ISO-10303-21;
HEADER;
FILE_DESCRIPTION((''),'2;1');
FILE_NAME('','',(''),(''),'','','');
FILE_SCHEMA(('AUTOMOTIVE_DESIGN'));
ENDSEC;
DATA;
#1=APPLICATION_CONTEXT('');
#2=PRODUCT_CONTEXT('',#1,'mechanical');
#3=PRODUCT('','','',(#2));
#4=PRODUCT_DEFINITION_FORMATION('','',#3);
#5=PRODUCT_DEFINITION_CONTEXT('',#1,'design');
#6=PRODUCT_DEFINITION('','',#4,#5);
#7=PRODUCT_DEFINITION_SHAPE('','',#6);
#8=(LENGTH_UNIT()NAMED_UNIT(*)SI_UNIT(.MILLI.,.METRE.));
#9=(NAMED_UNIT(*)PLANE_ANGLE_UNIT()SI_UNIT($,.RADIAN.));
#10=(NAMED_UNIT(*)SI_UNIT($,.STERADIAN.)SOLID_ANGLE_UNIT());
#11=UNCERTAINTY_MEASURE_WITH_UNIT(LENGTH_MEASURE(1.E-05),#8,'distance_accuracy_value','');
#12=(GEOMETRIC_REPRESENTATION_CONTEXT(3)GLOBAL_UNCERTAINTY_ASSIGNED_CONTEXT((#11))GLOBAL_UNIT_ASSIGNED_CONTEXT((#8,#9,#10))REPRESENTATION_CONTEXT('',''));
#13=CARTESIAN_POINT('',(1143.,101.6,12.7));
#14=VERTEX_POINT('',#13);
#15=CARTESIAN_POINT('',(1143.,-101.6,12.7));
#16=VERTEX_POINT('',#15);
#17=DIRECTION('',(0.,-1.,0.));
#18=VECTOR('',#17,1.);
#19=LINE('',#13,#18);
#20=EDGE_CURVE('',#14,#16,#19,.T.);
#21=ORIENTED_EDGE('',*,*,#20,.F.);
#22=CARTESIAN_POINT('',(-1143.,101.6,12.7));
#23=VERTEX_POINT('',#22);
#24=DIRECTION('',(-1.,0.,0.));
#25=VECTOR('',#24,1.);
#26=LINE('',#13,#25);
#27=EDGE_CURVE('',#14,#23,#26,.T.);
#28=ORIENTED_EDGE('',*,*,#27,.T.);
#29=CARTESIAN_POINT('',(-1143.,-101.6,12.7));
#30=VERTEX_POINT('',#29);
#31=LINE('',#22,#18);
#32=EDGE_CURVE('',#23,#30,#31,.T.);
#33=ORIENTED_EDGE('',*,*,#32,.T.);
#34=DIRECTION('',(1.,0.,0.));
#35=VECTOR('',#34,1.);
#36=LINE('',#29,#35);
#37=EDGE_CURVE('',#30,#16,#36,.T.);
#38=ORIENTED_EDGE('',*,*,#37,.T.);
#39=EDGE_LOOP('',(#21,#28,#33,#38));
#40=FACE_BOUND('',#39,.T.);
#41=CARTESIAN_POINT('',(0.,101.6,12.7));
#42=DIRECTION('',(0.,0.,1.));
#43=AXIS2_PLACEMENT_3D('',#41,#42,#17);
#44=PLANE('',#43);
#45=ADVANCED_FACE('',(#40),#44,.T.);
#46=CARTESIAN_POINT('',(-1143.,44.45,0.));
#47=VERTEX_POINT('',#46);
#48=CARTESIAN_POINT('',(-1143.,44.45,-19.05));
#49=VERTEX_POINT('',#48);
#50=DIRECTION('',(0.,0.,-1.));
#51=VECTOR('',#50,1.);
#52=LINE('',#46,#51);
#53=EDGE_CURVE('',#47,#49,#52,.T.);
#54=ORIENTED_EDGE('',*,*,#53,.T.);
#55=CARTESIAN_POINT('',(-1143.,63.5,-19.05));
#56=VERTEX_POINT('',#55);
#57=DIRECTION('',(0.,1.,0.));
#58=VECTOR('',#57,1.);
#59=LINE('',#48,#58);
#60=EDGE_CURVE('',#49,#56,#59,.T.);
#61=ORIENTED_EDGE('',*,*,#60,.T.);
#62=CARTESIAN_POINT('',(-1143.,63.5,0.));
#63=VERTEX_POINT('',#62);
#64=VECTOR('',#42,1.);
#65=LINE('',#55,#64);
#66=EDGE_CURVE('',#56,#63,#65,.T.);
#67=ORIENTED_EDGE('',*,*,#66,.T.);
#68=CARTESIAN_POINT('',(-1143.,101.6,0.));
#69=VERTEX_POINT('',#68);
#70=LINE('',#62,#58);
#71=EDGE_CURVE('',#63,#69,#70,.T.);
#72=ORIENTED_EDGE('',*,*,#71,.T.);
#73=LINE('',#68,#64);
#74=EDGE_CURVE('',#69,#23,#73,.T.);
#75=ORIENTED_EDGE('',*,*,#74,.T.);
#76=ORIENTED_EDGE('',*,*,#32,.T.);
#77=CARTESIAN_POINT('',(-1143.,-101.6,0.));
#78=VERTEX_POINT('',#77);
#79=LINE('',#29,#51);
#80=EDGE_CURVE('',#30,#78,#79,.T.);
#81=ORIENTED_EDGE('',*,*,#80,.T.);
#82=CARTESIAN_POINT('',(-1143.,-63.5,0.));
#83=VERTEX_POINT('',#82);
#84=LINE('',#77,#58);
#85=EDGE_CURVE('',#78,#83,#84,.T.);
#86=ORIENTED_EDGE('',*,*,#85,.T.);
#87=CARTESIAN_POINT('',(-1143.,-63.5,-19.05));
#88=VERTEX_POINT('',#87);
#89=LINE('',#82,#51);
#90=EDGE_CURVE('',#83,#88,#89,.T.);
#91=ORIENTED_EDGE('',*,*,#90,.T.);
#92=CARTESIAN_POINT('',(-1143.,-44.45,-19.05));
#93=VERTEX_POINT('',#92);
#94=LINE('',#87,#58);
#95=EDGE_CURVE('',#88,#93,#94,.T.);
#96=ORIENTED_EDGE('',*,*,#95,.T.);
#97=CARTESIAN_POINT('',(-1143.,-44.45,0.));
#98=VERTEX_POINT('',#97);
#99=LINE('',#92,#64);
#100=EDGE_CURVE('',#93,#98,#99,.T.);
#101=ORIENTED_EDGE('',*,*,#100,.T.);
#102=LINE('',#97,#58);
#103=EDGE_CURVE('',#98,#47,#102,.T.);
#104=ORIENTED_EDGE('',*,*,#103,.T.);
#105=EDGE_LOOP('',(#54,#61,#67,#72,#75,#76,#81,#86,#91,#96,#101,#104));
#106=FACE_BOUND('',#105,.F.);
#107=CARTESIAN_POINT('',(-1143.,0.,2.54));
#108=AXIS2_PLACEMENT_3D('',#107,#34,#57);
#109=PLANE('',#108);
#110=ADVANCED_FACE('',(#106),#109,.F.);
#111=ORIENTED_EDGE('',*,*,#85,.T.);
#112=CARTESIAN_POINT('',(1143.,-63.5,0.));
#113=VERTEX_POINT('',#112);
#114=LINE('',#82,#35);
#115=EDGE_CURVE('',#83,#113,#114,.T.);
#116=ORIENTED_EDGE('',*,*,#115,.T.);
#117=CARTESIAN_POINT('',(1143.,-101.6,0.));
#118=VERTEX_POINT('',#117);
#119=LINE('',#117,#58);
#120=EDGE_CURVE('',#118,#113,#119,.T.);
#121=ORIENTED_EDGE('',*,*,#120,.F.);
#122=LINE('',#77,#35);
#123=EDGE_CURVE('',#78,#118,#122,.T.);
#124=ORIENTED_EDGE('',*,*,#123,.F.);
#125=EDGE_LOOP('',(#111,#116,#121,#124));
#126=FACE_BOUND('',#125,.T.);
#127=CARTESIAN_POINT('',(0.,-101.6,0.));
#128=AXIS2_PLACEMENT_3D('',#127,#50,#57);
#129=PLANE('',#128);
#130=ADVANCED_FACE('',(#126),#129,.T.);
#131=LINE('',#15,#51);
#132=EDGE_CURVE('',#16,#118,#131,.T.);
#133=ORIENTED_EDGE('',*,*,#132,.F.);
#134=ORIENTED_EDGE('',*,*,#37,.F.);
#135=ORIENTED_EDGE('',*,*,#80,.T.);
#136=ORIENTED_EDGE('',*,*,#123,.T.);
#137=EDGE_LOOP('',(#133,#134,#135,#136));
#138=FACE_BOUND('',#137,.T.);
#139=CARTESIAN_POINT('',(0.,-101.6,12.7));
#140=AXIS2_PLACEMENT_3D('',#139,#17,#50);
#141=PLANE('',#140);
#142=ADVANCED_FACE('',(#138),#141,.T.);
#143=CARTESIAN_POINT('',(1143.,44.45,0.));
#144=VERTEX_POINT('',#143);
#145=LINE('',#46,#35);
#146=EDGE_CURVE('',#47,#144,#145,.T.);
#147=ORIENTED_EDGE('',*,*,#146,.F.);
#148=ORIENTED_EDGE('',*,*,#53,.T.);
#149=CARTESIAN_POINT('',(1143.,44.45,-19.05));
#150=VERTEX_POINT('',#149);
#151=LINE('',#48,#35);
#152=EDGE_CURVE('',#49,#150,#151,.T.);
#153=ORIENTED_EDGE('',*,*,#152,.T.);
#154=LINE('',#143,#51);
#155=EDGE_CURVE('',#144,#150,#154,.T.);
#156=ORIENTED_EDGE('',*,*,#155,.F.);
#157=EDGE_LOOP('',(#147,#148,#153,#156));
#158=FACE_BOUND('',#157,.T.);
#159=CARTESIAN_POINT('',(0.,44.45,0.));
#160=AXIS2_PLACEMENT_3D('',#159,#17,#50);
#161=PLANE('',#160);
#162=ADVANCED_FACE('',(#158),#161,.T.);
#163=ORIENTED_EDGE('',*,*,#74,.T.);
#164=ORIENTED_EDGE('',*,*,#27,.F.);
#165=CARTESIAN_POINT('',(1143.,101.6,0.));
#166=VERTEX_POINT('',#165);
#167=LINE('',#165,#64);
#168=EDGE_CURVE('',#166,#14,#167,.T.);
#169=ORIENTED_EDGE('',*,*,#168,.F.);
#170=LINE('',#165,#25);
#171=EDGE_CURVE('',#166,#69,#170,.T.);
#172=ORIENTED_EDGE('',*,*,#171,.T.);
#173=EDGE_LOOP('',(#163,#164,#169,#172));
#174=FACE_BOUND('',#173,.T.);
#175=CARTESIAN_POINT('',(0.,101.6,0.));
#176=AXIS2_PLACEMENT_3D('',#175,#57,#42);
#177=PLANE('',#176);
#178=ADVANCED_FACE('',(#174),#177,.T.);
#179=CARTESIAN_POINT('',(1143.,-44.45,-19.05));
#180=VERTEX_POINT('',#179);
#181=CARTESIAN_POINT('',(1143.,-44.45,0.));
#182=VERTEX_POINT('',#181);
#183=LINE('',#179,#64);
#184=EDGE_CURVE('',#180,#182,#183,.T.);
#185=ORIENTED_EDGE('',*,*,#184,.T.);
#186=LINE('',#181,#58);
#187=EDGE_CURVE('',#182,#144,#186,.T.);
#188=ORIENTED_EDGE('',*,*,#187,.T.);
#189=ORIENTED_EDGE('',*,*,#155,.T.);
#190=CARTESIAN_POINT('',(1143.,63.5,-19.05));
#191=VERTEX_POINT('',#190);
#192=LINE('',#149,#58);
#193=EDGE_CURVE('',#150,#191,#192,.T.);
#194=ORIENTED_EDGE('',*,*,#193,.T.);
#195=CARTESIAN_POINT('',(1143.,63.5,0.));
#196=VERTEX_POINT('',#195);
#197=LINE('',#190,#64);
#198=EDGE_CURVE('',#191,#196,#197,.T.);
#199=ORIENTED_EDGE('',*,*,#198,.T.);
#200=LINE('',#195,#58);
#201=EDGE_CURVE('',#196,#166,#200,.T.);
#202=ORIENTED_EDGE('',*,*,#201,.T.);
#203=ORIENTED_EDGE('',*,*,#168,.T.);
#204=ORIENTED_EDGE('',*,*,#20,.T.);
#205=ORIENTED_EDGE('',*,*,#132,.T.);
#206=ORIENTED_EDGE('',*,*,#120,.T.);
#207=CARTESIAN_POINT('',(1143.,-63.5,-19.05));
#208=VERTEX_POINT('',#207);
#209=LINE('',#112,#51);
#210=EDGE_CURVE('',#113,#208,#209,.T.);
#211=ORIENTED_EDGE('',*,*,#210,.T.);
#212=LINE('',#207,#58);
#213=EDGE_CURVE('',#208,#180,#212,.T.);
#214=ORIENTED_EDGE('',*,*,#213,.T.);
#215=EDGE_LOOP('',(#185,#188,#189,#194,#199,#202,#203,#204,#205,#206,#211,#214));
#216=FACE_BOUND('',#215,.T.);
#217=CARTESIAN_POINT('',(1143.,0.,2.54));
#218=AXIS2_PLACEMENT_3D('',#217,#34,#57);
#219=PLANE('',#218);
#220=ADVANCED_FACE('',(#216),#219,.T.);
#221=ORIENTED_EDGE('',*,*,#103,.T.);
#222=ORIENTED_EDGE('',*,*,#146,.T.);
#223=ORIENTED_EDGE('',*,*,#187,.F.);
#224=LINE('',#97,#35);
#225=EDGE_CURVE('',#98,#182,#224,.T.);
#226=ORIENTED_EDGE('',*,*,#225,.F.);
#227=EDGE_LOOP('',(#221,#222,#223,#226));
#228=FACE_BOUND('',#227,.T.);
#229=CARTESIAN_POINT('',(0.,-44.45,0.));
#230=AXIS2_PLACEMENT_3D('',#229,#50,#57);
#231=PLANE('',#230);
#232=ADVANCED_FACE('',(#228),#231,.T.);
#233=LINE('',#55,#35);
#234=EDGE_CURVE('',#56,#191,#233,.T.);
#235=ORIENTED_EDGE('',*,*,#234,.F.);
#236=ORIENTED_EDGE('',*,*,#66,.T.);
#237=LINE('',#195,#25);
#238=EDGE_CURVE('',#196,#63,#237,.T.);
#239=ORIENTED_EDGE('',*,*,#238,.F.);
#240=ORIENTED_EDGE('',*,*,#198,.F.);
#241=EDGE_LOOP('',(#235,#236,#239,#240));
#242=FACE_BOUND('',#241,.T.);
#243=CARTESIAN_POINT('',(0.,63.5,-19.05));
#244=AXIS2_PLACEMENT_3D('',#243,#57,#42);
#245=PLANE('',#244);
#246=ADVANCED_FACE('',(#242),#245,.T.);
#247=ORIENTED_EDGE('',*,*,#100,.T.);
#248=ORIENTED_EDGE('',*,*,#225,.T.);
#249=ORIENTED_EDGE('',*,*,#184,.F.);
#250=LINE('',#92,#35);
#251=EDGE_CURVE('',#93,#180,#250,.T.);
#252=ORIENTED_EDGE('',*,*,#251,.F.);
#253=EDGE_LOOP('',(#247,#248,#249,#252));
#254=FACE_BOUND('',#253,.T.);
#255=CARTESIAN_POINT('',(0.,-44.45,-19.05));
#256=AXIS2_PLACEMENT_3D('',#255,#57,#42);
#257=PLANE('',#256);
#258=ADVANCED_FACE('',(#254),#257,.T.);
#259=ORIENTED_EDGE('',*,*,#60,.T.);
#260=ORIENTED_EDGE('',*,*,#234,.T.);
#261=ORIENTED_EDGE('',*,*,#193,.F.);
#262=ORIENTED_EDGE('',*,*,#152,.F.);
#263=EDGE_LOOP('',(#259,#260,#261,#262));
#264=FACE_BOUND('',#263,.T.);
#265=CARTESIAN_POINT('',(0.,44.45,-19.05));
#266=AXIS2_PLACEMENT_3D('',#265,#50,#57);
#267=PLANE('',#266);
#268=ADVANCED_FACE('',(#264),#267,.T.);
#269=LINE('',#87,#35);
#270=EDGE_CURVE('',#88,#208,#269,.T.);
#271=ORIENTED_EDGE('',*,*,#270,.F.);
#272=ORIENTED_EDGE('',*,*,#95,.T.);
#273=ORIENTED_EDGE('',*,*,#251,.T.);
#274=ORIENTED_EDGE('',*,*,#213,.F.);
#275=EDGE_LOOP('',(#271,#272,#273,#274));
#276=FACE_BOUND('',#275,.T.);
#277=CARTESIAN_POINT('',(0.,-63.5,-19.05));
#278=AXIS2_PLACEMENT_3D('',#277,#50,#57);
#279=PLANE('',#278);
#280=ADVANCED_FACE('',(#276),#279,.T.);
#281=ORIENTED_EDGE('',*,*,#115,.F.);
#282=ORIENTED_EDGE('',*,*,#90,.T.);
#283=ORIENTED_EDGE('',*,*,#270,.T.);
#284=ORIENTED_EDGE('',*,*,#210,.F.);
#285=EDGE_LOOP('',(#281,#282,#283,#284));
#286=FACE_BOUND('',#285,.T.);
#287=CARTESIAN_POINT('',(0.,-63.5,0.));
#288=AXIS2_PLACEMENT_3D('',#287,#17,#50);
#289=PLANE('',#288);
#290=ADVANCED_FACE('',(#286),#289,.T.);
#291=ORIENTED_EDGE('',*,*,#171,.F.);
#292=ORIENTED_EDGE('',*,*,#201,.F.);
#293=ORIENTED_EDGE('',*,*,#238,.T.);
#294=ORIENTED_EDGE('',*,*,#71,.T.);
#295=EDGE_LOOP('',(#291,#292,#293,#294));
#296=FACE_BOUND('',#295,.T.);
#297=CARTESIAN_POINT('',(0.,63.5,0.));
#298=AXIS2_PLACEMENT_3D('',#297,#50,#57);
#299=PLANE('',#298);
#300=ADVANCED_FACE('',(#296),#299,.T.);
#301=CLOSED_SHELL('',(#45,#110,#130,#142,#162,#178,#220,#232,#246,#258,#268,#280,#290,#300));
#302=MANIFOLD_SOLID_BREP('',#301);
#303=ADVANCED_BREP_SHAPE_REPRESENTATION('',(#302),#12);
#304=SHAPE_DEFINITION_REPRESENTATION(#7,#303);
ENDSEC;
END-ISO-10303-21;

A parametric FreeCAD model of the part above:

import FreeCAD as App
import Part
import Sketcher

V = App.Vector
Q = App.Units.Quantity

doc = App.newDocument("Part")
body = doc.addObject("PartDesign::Body", "Body")

# Sketch on YZ plane
sketch1 = body.newObject("Sketcher::SketchObject", "Sketch")
sketch1.AttachmentSupport = (doc.getObject("YZ_Plane"), [""])
sketch1.MapMode = "FlatFace"
sketch1.addGeometry(Part.LineSegment(V(102, 13, 0), V(-102, 13, 0)), False)
sketch1.addGeometry(Part.LineSegment(V(-102, 13, 0), V(-102, 0, 0)), False)
sketch1.addGeometry(Part.LineSegment(V(-102, 0, 0), V(-64, 0, 0)), False)
sketch1.addGeometry(Part.LineSegment(V(-64, 0, 0), V(-64, -19, 0)), False)
sketch1.addGeometry(Part.LineSegment(V(-64, -19, 0), V(-44, -19, 0)), False)
sketch1.addGeometry(Part.LineSegment(V(-44, -19, 0), V(-44, 0, 0)), False)
sketch1.addGeometry(Part.LineSegment(V(-44, 0, 0), V(44, 0, 0)), False)
sketch1.addGeometry(Part.LineSegment(V(44, 0, 0), V(44, -19, 0)), False)
sketch1.addGeometry(Part.LineSegment(V(44, -19, 0), V(64, -19, 0)), False)
sketch1.addGeometry(Part.LineSegment(V(64, -19, 0), V(64, 0, 0)), False)
sketch1.addGeometry(Part.LineSegment(V(64, 0, 0), V(102, 0, 0)), False)
sketch1.addGeometry(Part.LineSegment(V(102, 0, 0), V(102, 13, 0)), False)
sketch1.addConstraint(Sketcher.Constraint("Coincident", 0, 2, 1, 1))
sketch1.addConstraint(Sketcher.Constraint("Coincident", 1, 2, 2, 1))
sketch1.addConstraint(Sketcher.Constraint("Coincident", 2, 2, 3, 1))
sketch1.addConstraint(Sketcher.Constraint("Coincident", 3, 2, 4, 1))
sketch1.addConstraint(Sketcher.Constraint("Coincident", 4, 2, 5, 1))
sketch1.addConstraint(Sketcher.Constraint("Coincident", 5, 2, 6, 1))
sketch1.addConstraint(Sketcher.Constraint("Coincident", 6, 2, 7, 1))
sketch1.addConstraint(Sketcher.Constraint("Coincident", 7, 2, 8, 1))
sketch1.addConstraint(Sketcher.Constraint("Coincident", 8, 2, 9, 1))
sketch1.addConstraint(Sketcher.Constraint("Coincident", 9, 2, 10, 1))
sketch1.addConstraint(Sketcher.Constraint("Coincident", 10, 2, 11, 1))
sketch1.addConstraint(Sketcher.Constraint("Coincident", 11, 2, 0, 1))
sketch1.addConstraint(Sketcher.Constraint("Horizontal", 0))
sketch1.addConstraint(Sketcher.Constraint("Vertical", 1))
sketch1.addConstraint(Sketcher.Constraint("Horizontal", 2))
sketch1.addConstraint(Sketcher.Constraint("Vertical", 3))
sketch1.addConstraint(Sketcher.Constraint("Horizontal", 4))
sketch1.addConstraint(Sketcher.Constraint("Vertical", 5))
sketch1.addConstraint(Sketcher.Constraint("Horizontal", 6))
sketch1.addConstraint(Sketcher.Constraint("Vertical", 7))
sketch1.addConstraint(Sketcher.Constraint("Horizontal", 8))
sketch1.addConstraint(Sketcher.Constraint("Vertical", 9))
sketch1.addConstraint(Sketcher.Constraint("Horizontal", 10))
sketch1.addConstraint(Sketcher.Constraint("Vertical", 11))
sketch1.addConstraint(Sketcher.Constraint("Symmetric", 5, 2, 6, 2, -1, 1))
sketch1.addConstraint(Sketcher.Constraint("Symmetric", 2, 2, 9, 2, -1, 1))
sketch1.addConstraint(Sketcher.Constraint("Symmetric", 1, 2, 10, 2, -2))
sketch1.addConstraint(Sketcher.Constraint("Horizontal", 4, 2, 7, 2))
sketch1.addConstraint(Sketcher.Constraint("Equal", 8, 3))
sketch1.addConstraint(Sketcher.Constraint("DistanceX", 0, 2, 0, 1, Q("8 in")))
sketch1.addConstraint(Sketcher.Constraint("DistanceX", 2, 1, 2, 2, Q("1.5 in")))
sketch1.addConstraint(Sketcher.Constraint("DistanceX", 6, 1, 6, 2, Q("3.5 in")))
sketch1.addConstraint(Sketcher.Constraint("DistanceY", 1, 2, 1, 1, Q("0.5 in")))
pad1 = body.newObject("PartDesign::Pad", "Pad")
pad1.Profile = sketch1
pad1.Length = Q("90 in")
pad1.Midplane = True

doc.recompute()
